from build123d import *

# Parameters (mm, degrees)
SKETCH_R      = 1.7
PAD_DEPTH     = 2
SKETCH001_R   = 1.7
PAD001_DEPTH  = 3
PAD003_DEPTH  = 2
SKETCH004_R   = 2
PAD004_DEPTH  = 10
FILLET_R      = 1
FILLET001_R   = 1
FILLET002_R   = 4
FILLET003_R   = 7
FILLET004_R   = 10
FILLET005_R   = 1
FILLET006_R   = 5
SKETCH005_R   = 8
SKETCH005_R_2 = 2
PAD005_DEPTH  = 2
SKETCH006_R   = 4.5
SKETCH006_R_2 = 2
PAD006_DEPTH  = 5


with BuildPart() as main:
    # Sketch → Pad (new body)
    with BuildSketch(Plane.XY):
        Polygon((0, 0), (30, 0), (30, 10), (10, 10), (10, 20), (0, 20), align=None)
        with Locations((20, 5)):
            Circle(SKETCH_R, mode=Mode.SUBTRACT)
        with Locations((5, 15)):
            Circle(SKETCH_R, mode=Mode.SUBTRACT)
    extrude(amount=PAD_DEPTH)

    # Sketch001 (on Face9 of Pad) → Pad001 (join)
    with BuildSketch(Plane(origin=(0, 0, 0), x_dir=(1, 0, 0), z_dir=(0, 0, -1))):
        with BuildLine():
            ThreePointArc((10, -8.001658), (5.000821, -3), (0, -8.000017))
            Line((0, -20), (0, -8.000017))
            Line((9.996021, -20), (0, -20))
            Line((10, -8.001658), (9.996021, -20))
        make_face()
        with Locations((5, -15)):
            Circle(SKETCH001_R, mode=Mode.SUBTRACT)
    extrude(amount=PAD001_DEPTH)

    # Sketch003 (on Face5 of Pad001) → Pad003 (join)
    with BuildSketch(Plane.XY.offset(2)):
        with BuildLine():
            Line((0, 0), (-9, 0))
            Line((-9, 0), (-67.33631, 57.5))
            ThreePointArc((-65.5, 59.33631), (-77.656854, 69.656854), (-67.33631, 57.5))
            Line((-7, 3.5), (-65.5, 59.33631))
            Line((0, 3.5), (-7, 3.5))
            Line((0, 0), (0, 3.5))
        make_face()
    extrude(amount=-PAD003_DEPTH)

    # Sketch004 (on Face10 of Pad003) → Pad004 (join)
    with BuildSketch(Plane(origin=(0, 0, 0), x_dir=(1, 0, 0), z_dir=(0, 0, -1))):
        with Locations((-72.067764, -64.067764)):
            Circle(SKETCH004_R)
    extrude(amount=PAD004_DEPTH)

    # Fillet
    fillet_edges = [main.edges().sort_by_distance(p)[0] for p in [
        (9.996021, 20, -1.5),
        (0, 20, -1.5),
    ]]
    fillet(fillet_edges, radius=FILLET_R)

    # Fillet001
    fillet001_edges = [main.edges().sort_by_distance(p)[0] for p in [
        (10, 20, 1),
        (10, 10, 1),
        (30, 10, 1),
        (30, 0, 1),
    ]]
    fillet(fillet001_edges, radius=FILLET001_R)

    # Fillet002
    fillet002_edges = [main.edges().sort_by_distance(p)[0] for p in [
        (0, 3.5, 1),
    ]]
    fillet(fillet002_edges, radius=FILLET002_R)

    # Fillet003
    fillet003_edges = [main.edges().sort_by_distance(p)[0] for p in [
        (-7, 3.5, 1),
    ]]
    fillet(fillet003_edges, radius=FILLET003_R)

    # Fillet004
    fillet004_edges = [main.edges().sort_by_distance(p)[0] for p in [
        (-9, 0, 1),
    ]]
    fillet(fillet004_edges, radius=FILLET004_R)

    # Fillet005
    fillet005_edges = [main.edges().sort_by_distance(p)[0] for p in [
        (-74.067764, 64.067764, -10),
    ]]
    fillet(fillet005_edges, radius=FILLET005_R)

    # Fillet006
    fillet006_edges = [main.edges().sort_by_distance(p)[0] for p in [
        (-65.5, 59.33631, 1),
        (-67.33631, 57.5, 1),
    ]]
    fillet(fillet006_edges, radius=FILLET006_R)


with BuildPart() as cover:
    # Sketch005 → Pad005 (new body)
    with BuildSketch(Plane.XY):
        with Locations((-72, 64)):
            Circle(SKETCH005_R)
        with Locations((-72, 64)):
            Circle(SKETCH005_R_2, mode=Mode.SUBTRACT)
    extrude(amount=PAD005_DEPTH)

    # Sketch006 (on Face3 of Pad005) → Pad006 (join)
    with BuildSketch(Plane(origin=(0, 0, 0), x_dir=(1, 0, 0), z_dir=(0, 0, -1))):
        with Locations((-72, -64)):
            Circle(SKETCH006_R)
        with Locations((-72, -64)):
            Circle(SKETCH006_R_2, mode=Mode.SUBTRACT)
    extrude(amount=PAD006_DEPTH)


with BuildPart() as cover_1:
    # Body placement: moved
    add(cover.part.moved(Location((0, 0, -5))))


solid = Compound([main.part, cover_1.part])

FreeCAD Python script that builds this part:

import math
import FreeCAD as App
import Part
import Sketcher
Q = App.Units.Quantity


def edges_at(feature, points):
    """Names of the edges that pass closest to the given points."""
    edges = feature.Shape.Edges
    near = lambda p: min(range(len(edges)), key=lambda i: edges[i].distToShape(Part.Vertex(*p))[0])
    return sorted({f"Edge{near(p) + 1}" for p in points})

doc = App.newDocument("Part")
body = doc.addObject("PartDesign::Body", "Body")

# Sketch on XY plane
sketch1 = body.newObject("Sketcher::SketchObject", "Sketch")
sketch1.AttachmentSupport = (doc.getObject("XY_Plane"), [""])
sketch1.MapMode = "FlatFace"
sketch1.addGeometry(Part.LineSegment(App.Vector(0, 0, 0), App.Vector(30, 0, 0)), False)
sketch1.addGeometry(Part.LineSegment(App.Vector(30, 0, 0), App.Vector(30, 10, 0)), False)
sketch1.addGeometry(Part.LineSegment(App.Vector(30, 10, 0), App.Vector(10, 10, 0)), False)
sketch1.addGeometry(Part.LineSegment(App.Vector(10, 10, 0), App.Vector(10, 20, 0)), False)
sketch1.addGeometry(Part.LineSegment(App.Vector(10, 20, 0), App.Vector(0, 20, 0)), False)
sketch1.addGeometry(Part.LineSegment(App.Vector(0, 20, 0), App.Vector(0, 0, 0)), False)
sketch1.addGeometry(Part.Circle(App.Vector(20, 5, 0), App.Vector(0, 0, 1), 1.7), False)
sketch1.addGeometry(Part.Circle(App.Vector(5, 15, 0), App.Vector(0, 0, 1), 1.7), False)
sketch1.addConstraint(Sketcher.Constraint("Coincident", 0, 2, 1, 1))
sketch1.addConstraint(Sketcher.Constraint("Coincident", 1, 2, 2, 1))
sketch1.addConstraint(Sketcher.Constraint("Coincident", 2, 2, 3, 1))
sketch1.addConstraint(Sketcher.Constraint("Coincident", 3, 2, 4, 1))
sketch1.addConstraint(Sketcher.Constraint("Coincident", 4, 2, 5, 1))
sketch1.addConstraint(Sketcher.Constraint("Coincident", 5, 2, 0, 1))
sketch1.addConstraint(Sketcher.Constraint("Horizontal", 0))
sketch1.addConstraint(Sketcher.Constraint("Vertical", 1))
sketch1.addConstraint(Sketcher.Constraint("Horizontal", 2))
sketch1.addConstraint(Sketcher.Constraint("Vertical", 3))
sketch1.addConstraint(Sketcher.Constraint("Horizontal", 4))
sketch1.addConstraint(Sketcher.Constraint("Vertical", 5))
sketch1.addConstraint(Sketcher.Constraint("Coincident", 5, 2, -1, 1))
sketch1.addConstraint(Sketcher.Constraint("Equal", 6, 7))
sketch1.addConstraint(Sketcher.Constraint("Equal", 4, 1))
sketch1.addConstraint(Sketcher.Constraint("Equal", 1, 3))
sketch1.addConstraint(Sketcher.Constraint("Equal", 2, 5))
sketch1.addConstraint(Sketcher.Constraint("Diameter", 6, Q("3.4 mm")))
sketch1.addConstraint(Sketcher.Constraint("DistanceX", 0, 1, 0, 2, Q("30 mm")))
sketch1.addConstraint(Sketcher.Constraint("DistanceX", -1, 1, 6, 3, Q("20 mm")))
sketch1.addConstraint(Sketcher.Constraint("DistanceY", -1, 1, 6, 3, Q("5 mm")))
sketch1.addConstraint(Sketcher.Constraint("DistanceX", -1, 1, 7, 3, Q("5 mm")))
sketch1.addConstraint(Sketcher.Constraint("DistanceY", -1, 1, 7, 3, Q("15 mm")))
pad1 = body.newObject("PartDesign::Pad", "Pad")
pad1.Profile = sketch1
pad1.Length = 2

# Sketch on XY plane
sketch2 = body.newObject("Sketcher::SketchObject", "Sketch001")
sketch2.AttachmentSupport = (doc.getObject("XY_Plane"), [""])
sketch2.MapMode = "FlatFace"
sketch2.addGeometry(Part.ArcOfCircle(Part.Circle(App.Vector(5, 8, 0), App.Vector(0, 0, 1), 5), math.radians(180), math.radians(360)), False)
sketch2.addGeometry(Part.LineSegment(App.Vector(0, 8, 0), App.Vector(0, 20, 0)), False)
sketch2.addGeometry(Part.LineSegment(App.Vector(0, 20, 0), App.Vector(10, 20, 0)), False)
sketch2.addGeometry(Part.LineSegment(App.Vector(10, 20, 0), App.Vector(10, 8, 0)), False)
sketch2.addGeometry(Part.Circle(App.Vector(5, 15, 0), App.Vector(0, 0, 1), 1.7), False)
sketch2.addConstraint(Sketcher.Constraint("Coincident", 0, 1, 1, 1))
sketch2.addConstraint(Sketcher.Constraint("Coincident", 1, 2, 2, 1))
sketch2.addConstraint(Sketcher.Constraint("Coincident", 2, 2, 3, 1))
sketch2.addConstraint(Sketcher.Constraint("Tangent", 3, 2, 0, 2))
sketch2.addConstraint(Sketcher.Constraint("Vertical", 1))
sketch2.addConstraint(Sketcher.Constraint("Horizontal", 2))
sketch2.addConstraint(Sketcher.Constraint("PointOnObject", 0, 1, -2))
sketch2.addConstraint(Sketcher.Constraint("Vertical", 0, 3, 4, 3))
sketch2.addConstraint(Sketcher.Constraint("Radius", 0, Q("5 mm")))
sketch2.addConstraint(Sketcher.Constraint("Diameter", 4, Q("3.4 mm")))
sketch2.addConstraint(Sketcher.Constraint("DistanceY", -1, 1, 0, 3, Q("8 mm")))
sketch2.addConstraint(Sketcher.Constraint("DistanceY", -1, 1, 4, 3, Q("15 mm")))
sketch2.addConstraint(Sketcher.Constraint("DistanceY", -1, 1, 1, 2, Q("20 mm")))
sketch2.addConstraint(Sketcher.Constraint("DistanceX", 2, 1, 2, 2, Q("9.996021 mm")))
sketch2.addConstraint(Sketcher.Constraint("DistanceY", 1, 1, 1, 2, Q("11.999983 mm")))
pad2 = body.newObject("PartDesign::Pad", "Pad001")
pad2.Profile = sketch2
pad2.Length = 3
pad2.Reversed = True

# Sketch on XY plane
sketch3 = body.newObject("Sketcher::SketchObject", "Sketch002")
sketch3.AttachmentSupport = (doc.getObject("XY_Plane"), [""])
sketch3.MapMode = "FlatFace"
sketch3.AttachmentOffset = App.Placement(App.Vector(0, 0, 2), App.Rotation())
sketch3.addGeometry(Part.LineSegment(App.Vector(-9, 0, 0), App.Vector(0, 0, 0)), False)
sketch3.addGeometry(Part.LineSegment(App.Vector(0, 0, 0), App.Vector(0, 3.5, 0)), False)
sketch3.addGeometry(Part.LineSegment(App.Vector(0, 3.5, 0), App.Vector(-7, 3.5, 0)), False)
sketch3.addGeometry(Part.LineSegment(App.Vector(-7, 3.5, 0), App.Vector(-65.5, 59.3, 0)), False)
sketch3.addGeometry(Part.ArcOfCircle(Part.Circle(App.Vector(-72, 64, 0), App.Vector(0, 0, 1), 8), math.radians(-36), math.radians(306)), False)
sketch3.addGeometry(Part.LineSegment(App.Vector(-67.3, 57.5, 0), App.Vector(-9, 0, 0)), False)
sketch3.addConstraint(Sketcher.Constraint("Coincident", 0, 2, 1, 1))
sketch3.addConstraint(Sketcher.Constraint("Coincident", 1, 2, 2, 1))
sketch3.addConstraint(Sketcher.Constraint("Coincident", 2, 2, 3, 1))
sketch3.addConstraint(Sketcher.Constraint("Coincident", 3, 2, 4, 1))
sketch3.addConstraint(Sketcher.Constraint("Coincident", 4, 2, 5, 1))
sketch3.addConstraint(Sketcher.Constraint("Coincident", 5, 2, 0, 1))
sketch3.addConstraint(Sketcher.Constraint("Horizontal", 0))
sketch3.addConstraint(Sketcher.Constraint("Vertical", 1))
sketch3.addConstraint(Sketcher.Constraint("Horizontal", 2))
sketch3.addConstraint(Sketcher.Constraint("Coincident", 0, 2, -1, 1))
sketch3.addConstraint(Sketcher.Constraint("Radius", 4, Q("8 mm")))
sketch3.addConstraint(Sketcher.Constraint("DistanceX", 0, 1, 0, 2, Q("9 mm")))
sketch3.addConstraint(Sketcher.Constraint("DistanceX", 2, 2, 2, 1, Q("7 mm")))
sketch3.addConstraint(Sketcher.Constraint("DistanceY", 1, 1, 1, 2, Q("3.5 mm")))
sketch3.addConstraint(Sketcher.Constraint("DistanceX", 4, 3, -1, 1, Q("72 mm")))
sketch3.addConstraint(Sketcher.Constraint("DistanceY", -1, 1, 4, 3, Q("64 mm")))
sketch3.addConstraint(Sketcher.Constraint("DistanceY", 2, 2, 4, 2, Q("54 mm")))
sketch3.addConstraint(Sketcher.Constraint("DistanceX", 3, 2, -1, 1, Q("65.5 mm")))
pad3 = body.newObject("PartDesign::Pad", "Pad002")
pad3.Profile = sketch3
pad3.Length = 2
pad3.Reversed = True

# Sketch on XY plane
sketch4 = body.newObject("Sketcher::SketchObject", "Sketch003")
sketch4.AttachmentSupport = (doc.getObject("XY_Plane"), [""])
sketch4.MapMode = "FlatFace"
sketch4.addGeometry(Part.Circle(App.Vector(-72.1, 64.1, 0), App.Vector(0, 0, 1), 2), False)
sketch4.addConstraint(Sketcher.Constraint("Diameter", 0, Q("4 mm")))
sketch4.addConstraint(Sketcher.Constraint("DistanceX", 0, 3, -1, 1, Q("72.067764 mm")))
sketch4.addConstraint(Sketcher.Constraint("DistanceY", -1, 1, 0, 3, Q("64.067764 mm")))
pad4 = body.newObject("PartDesign::Pad", "Pad003")
pad4.Profile = sketch4
pad4.Length = 10
pad4.Reversed = True
doc.recompute()

fillet = body.newObject("PartDesign::Fillet", "Fillet")
fillet.Base = (pad4, edges_at(pad4, [(9.996, 20, -1.5), (0, 20, -0.5)]))
fillet.Radius = 1
doc.recompute()

fillet2 = body.newObject("PartDesign::Fillet", "Fillet001")
fillet2.Base = (fillet, edges_at(fillet, [
    (10, 20, 1),
    (10, 10, 1),
    (30, 10, 1),
    (30, 0, 1),
]))
fillet2.Radius = 1
doc.recompute()

fillet3 = body.newObject("PartDesign::Fillet", "Fillet002")
fillet3.Base = (fillet2, edges_at(fillet2, [(0, 3.5, 1)]))
fillet3.Radius = 4
doc.recompute()

fillet4 = body.newObject("PartDesign::Fillet", "Fillet003")
fillet4.Base = (fillet3, edges_at(fillet3, [(-7, 3.5, 1)]))
fillet4.Radius = 7
doc.recompute()

fillet5 = body.newObject("PartDesign::Fillet", "Fillet004")
fillet5.Base = (fillet4, edges_at(fillet4, [(-9, 0, 1)]))
fillet5.Radius = 10
doc.recompute()

fillet6 = body.newObject("PartDesign::Fillet", "Fillet005")
fillet6.Base = (fillet5, edges_at(fillet5, [(-74.068, 64.068, -10)]))
fillet6.Radius = 1
doc.recompute()

fillet7 = body.newObject("PartDesign::Fillet", "Fillet006")
fillet7.Base = (fillet6, edges_at(fillet6, [(-65.5, 59.336, 1), (-67.336, 57.5, 1)]))
fillet7.Radius = 5
body2 = doc.addObject("PartDesign::Body", "Body001")

# Sketch on XY plane
sketch5 = body2.newObject("Sketcher::SketchObject", "Sketch004")
sketch5.AttachmentSupport = (doc.getObject("XY_Plane001"), [""])
sketch5.MapMode = "FlatFace"
sketch5.addGeometry(Part.Circle(App.Vector(-72, 64, 0), App.Vector(0, 0, 1), 8), False)
sketch5.addGeometry(Part.Circle(App.Vector(-72, 64, 0), App.Vector(0, 0, 1), 2), False)
sketch5.addConstraint(Sketcher.Constraint("Coincident", 1, 3, 0, 3))
sketch5.addConstraint(Sketcher.Constraint("Diameter", 0, Q("16 mm")))
sketch5.addConstraint(Sketcher.Constraint("Diameter", 1, Q("4 mm")))
sketch5.addConstraint(Sketcher.Constraint("DistanceX", 0, 3, -1, 1, Q("72 mm")))
sketch5.addConstraint(Sketcher.Constraint("DistanceY", -1, 1, 0, 3, Q("64 mm")))
pad5 = body2.newObject("PartDesign::Pad", "Pad004")
pad5.Profile = sketch5
pad5.Length = 2

# Sketch on XY plane
sketch6 = body2.newObject("Sketcher::SketchObject", "Sketch005")
sketch6.AttachmentSupport = (doc.getObject("XY_Plane001"), [""])
sketch6.MapMode = "FlatFace"
sketch6.addGeometry(Part.Circle(App.Vector(-72, 64, 0), App.Vector(0, 0, 1), 4.5), False)
sketch6.addGeometry(Part.Circle(App.Vector(-72, 64, 0), App.Vector(0, 0, 1), 2), False)
sketch6.addConstraint(Sketcher.Constraint("Coincident", 1, 3, 0, 3))
sketch6.addConstraint(Sketcher.Constraint("Diameter", 0, Q("9 mm")))
sketch6.addConstraint(Sketcher.Constraint("Diameter", 1, Q("4 mm")))
sketch6.addConstraint(Sketcher.Constraint("DistanceX", 0, 3, -1, 1, Q("72 mm")))
sketch6.addConstraint(Sketcher.Constraint("DistanceY", -1, 1, 0, 3, Q("64 mm")))
pad6 = body2.newObject("PartDesign::Pad", "Pad005")
pad6.Profile = sketch6
pad6.Length = 5
pad6.Reversed = True
body3 = doc.addObject("PartDesign::Body", "Body002")
doc.recompute()

body2.Placement = App.Placement(App.Vector(0, 0, -5), App.Rotation(App.Vector(0, 0, 1), 0))
boolean = body3.newObject("PartDesign::Boolean", "Boolean")
boolean.Type = "Fuse"
boolean.addObjects([body2])

doc.recompute()
